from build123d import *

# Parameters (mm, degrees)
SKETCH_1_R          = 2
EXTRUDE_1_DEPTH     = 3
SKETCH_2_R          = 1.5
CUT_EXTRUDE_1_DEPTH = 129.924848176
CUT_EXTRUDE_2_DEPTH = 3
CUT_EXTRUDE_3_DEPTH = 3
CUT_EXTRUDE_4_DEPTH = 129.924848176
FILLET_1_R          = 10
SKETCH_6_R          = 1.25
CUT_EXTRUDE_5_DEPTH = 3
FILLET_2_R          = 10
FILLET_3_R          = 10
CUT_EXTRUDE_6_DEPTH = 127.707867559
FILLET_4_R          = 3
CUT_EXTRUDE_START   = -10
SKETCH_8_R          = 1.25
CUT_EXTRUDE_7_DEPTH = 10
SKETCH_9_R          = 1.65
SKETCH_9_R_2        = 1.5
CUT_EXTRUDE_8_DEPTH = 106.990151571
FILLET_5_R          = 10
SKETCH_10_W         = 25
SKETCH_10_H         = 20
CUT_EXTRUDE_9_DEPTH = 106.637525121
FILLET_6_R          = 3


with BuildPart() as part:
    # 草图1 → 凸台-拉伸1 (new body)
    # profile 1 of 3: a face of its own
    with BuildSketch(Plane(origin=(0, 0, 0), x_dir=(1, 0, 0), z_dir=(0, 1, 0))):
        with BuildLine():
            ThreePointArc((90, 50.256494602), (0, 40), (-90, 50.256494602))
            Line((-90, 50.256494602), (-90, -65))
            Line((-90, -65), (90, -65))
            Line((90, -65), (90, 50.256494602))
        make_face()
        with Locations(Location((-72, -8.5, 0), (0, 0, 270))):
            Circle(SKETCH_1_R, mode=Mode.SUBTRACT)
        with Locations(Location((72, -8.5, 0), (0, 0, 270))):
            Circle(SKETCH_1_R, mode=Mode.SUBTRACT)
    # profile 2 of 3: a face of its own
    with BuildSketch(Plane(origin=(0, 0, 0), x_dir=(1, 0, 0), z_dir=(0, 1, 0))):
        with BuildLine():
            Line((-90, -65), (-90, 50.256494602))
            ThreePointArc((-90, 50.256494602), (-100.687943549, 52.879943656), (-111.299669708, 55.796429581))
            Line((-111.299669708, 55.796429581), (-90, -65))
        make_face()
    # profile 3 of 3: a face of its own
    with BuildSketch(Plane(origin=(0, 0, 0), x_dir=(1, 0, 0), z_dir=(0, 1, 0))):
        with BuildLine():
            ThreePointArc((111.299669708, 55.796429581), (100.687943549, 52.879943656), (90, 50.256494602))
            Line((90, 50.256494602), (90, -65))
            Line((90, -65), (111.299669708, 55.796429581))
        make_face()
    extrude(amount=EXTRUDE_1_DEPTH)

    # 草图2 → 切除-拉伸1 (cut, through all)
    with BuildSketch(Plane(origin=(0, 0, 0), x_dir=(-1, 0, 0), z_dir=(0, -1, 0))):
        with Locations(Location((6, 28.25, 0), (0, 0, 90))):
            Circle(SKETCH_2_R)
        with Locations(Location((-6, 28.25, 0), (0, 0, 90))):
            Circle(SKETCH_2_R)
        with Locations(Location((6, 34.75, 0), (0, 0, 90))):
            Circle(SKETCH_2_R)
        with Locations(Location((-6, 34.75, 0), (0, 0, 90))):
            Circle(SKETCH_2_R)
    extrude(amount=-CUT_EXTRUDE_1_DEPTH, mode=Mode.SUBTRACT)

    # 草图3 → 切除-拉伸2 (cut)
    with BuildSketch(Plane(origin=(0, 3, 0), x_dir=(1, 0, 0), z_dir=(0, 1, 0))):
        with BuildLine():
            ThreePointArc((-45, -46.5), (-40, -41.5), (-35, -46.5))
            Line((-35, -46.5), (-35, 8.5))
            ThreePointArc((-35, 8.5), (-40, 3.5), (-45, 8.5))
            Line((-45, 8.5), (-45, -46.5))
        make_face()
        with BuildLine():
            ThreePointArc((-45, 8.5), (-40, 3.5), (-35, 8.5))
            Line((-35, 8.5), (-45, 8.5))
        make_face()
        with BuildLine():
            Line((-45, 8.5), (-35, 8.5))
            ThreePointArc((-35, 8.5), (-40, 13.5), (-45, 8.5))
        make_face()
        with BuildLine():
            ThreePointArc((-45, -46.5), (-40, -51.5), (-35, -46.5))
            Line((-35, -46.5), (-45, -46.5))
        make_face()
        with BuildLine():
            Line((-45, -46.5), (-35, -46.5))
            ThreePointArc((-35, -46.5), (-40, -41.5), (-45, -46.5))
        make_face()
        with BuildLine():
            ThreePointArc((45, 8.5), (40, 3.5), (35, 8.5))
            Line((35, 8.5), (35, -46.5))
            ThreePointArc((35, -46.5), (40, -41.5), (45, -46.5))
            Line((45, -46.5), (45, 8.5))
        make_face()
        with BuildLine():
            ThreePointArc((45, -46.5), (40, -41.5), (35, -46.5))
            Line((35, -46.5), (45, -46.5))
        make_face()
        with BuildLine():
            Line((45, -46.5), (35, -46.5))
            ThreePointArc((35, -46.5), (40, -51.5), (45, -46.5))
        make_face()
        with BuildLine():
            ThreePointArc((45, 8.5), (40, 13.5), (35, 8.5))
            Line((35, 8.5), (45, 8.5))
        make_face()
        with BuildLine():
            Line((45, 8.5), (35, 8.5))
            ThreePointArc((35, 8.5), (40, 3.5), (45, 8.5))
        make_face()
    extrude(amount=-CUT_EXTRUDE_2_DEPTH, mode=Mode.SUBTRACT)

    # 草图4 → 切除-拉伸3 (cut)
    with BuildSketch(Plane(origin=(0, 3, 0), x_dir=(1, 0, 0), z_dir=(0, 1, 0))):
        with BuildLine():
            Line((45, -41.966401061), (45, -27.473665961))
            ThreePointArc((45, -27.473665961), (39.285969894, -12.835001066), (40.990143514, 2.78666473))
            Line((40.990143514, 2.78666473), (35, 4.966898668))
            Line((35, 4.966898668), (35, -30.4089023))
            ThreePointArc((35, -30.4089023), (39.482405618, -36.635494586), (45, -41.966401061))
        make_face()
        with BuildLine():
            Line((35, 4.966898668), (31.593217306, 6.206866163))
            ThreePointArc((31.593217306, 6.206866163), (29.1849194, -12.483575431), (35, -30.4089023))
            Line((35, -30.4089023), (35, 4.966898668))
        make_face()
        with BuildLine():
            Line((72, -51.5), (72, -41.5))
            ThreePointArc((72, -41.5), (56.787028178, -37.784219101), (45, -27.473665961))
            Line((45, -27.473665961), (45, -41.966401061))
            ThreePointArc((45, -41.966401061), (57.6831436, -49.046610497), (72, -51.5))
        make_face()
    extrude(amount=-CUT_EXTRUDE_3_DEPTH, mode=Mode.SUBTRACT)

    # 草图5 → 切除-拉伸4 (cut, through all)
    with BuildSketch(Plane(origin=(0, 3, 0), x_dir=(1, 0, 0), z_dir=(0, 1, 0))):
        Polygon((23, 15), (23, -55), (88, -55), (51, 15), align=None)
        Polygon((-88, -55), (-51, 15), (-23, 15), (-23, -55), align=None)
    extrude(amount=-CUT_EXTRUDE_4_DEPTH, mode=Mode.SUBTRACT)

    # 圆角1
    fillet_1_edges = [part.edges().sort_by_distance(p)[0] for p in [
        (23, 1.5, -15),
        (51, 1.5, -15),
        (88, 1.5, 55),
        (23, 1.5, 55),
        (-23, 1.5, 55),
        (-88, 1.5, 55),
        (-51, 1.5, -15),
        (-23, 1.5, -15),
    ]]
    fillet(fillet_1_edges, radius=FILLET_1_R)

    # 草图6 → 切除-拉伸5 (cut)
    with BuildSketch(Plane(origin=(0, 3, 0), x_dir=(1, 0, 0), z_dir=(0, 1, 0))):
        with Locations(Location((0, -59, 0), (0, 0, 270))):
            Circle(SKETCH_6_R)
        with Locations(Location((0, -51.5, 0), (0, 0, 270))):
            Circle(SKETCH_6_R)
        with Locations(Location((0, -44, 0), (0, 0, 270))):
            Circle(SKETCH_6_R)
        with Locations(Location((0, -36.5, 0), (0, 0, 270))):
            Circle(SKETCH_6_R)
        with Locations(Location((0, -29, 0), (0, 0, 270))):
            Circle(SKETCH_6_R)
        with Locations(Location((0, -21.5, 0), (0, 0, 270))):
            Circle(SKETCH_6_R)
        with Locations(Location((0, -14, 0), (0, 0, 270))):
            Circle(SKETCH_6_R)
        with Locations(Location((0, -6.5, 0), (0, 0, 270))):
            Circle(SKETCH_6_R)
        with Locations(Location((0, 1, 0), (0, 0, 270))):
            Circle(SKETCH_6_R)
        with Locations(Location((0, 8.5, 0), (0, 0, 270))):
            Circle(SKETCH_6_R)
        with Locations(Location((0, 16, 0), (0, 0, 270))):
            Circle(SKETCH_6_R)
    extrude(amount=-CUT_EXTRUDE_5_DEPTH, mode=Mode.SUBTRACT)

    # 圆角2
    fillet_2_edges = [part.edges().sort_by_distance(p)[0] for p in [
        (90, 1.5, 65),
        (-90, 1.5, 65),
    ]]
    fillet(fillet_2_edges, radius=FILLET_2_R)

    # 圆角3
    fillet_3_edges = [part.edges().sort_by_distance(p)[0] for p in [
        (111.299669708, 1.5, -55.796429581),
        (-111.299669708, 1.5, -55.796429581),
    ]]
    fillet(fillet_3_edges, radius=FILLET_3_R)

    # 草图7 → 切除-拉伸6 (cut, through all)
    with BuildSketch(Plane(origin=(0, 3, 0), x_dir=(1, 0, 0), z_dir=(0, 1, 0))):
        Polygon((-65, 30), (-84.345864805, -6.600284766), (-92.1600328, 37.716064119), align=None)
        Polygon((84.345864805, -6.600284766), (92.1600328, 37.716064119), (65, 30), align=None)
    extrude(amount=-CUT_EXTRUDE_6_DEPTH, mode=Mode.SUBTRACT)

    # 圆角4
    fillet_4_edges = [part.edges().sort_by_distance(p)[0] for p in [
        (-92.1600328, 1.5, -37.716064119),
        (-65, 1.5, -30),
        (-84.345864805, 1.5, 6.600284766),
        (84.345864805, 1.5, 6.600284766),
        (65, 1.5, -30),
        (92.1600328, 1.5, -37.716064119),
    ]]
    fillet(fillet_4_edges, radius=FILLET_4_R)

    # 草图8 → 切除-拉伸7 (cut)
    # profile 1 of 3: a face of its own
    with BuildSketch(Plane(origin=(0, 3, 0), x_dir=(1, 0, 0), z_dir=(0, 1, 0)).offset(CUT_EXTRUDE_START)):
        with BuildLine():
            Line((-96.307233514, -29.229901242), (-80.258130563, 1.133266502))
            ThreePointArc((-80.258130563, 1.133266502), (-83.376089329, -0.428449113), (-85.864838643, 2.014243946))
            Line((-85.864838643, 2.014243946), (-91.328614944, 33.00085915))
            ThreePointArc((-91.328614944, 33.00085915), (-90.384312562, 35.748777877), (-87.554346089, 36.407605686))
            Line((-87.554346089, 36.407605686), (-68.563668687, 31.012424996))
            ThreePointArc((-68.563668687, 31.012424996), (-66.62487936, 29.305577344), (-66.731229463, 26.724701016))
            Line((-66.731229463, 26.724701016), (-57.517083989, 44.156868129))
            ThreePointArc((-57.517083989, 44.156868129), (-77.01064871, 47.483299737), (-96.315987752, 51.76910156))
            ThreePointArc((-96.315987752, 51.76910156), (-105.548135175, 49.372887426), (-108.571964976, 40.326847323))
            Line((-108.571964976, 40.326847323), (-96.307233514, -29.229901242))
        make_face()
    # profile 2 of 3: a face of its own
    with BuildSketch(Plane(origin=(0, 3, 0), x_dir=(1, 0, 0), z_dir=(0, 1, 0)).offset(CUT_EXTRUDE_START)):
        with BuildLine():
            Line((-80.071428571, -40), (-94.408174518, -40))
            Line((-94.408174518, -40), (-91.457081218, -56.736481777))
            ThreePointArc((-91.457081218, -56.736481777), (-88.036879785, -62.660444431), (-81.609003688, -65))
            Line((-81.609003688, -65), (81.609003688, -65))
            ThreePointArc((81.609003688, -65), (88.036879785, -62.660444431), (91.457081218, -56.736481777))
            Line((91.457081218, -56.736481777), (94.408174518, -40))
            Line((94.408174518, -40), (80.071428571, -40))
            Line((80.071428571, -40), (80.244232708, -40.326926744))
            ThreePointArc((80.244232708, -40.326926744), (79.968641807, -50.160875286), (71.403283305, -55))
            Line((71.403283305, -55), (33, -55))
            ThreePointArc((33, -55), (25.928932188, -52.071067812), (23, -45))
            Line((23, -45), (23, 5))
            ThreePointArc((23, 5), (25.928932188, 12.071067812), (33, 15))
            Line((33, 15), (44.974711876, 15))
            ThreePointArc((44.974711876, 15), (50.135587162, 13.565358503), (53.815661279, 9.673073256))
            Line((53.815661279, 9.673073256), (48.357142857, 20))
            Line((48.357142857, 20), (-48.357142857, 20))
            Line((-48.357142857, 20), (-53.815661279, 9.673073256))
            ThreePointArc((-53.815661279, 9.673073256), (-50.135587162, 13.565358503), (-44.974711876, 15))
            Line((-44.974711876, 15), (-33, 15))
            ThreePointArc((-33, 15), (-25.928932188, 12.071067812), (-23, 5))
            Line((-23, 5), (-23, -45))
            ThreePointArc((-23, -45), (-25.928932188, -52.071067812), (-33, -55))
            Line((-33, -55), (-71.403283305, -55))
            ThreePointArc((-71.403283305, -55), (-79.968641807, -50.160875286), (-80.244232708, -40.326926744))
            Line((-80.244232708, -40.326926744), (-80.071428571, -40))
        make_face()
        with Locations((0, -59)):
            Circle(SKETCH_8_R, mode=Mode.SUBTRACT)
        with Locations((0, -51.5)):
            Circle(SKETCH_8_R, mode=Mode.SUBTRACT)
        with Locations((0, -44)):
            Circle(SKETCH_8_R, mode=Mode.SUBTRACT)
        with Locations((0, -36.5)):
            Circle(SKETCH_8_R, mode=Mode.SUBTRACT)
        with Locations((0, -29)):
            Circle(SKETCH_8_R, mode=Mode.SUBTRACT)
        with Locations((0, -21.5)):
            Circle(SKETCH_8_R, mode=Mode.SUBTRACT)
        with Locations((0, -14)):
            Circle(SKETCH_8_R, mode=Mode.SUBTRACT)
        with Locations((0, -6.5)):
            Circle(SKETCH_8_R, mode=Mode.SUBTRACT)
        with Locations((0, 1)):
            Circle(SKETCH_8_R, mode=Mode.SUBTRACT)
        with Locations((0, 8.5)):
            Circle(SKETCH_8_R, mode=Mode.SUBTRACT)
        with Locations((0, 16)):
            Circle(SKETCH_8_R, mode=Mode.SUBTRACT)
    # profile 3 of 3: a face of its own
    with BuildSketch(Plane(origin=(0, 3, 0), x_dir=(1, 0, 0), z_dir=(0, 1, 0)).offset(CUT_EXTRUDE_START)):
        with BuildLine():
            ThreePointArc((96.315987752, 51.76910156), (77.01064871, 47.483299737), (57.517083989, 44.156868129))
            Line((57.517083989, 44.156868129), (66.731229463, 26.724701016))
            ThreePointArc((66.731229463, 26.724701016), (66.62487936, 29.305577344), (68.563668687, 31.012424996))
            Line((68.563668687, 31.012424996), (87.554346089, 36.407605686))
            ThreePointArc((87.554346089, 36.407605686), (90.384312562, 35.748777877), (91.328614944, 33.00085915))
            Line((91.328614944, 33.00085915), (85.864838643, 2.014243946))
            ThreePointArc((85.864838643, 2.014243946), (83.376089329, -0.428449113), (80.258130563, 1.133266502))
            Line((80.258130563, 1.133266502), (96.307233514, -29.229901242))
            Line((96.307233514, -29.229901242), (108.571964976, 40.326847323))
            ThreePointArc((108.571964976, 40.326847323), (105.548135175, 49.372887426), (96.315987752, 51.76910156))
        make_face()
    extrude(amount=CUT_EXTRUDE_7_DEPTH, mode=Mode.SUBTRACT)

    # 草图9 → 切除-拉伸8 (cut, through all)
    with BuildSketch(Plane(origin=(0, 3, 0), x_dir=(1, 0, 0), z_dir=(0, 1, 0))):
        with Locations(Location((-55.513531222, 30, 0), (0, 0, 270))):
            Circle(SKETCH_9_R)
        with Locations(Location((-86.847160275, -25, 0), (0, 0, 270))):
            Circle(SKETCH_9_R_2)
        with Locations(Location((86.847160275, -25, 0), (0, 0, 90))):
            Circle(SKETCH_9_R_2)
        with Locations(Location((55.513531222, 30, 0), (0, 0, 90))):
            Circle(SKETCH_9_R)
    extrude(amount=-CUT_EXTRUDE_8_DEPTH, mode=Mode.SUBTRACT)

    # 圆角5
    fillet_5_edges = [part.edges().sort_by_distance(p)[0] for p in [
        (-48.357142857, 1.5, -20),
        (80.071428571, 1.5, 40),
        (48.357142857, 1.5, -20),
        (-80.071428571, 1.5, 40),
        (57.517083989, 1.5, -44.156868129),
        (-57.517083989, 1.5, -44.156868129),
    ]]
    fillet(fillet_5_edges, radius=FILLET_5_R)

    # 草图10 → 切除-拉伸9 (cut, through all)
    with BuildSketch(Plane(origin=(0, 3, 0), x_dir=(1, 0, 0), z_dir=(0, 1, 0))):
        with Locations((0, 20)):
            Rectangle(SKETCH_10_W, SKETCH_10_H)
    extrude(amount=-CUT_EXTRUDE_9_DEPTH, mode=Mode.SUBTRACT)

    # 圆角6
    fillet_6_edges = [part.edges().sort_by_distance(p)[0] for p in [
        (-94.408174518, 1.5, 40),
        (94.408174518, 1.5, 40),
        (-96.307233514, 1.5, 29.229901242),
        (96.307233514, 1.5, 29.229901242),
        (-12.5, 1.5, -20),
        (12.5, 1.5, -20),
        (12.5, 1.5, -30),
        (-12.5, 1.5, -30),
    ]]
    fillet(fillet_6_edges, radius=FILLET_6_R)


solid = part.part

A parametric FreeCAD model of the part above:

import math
import FreeCAD as App
import Part
import Sketcher

V = App.Vector
Q = App.Units.Quantity


def edges_at(feature, points):
    """Names of the edges that pass closest to the given points."""
    edges = feature.Shape.Edges
    near = lambda p: min(range(len(edges)), key=lambda i: edges[i].distToShape(Part.Vertex(*p))[0])
    return sorted({f"Edge{near(p) + 1}" for p in points})

doc = App.newDocument("Part")
body = doc.addObject("PartDesign::Body", "Body")

sketch1 = body.newObject("Sketcher::SketchObject", "Sketch")
sketch1.AttachmentSupport = (doc.getObject("XZ_Plane"), [""])
sketch1.MapMode = "FlatFace"
sketch1.addGeometry([
    Part.ArcOfCircle(Part.Circle(V(0, -440, 0), V(0, 0, 1), 400), math.radians(77), math.radians(103)),
    Part.ArcOfCircle(Part.Circle(V(0, -440, 0), V(0, 0, 1), 400), math.radians(103), math.radians(106.16)),
    Part.LineSegment(V(-111.3, -55.8, 0), V(-90, 65, 0)),
    Part.LineSegment(V(-90, 65, 0), V(90, 65, 0)),
    Part.LineSegment(V(90, 65, 0), V(111.3, -55.8, 0)),
    Part.ArcOfCircle(Part.Circle(V(0, -440, 0), V(0, 0, 1), 400), math.radians(73.84), math.radians(77)),
    Part.Circle(V(-72, 8.5, 0), V(0, 0, 1), 2),
    Part.Circle(V(72, 8.5, 0), V(0, 0, 1), 2),
], False)
sketch1.addConstraint([
    Sketcher.Constraint("Tangent", 0, 2, 1, 1),
    Sketcher.Constraint("Coincident", 1, 2, 2, 1),
    Sketcher.Constraint("Coincident", 2, 2, 3, 1),
    Sketcher.Constraint("Coincident", 3, 2, 4, 1),
    Sketcher.Constraint("Coincident", 4, 2, 5, 1),
    Sketcher.Constraint("Tangent", 5, 2, 0, 1),
    Sketcher.Constraint("Horizontal", 3),
    Sketcher.Constraint("Equal", 0, 1),
    Sketcher.Constraint("Equal", 1, 5),
    Sketcher.Constraint("Equal", 6, 7),
    Sketcher.Constraint("Symmetric", 6, 3, 7, 3, -2),
    Sketcher.Constraint("Symmetric", 1, 2, 4, 2, -2),
    Sketcher.Constraint("Horizontal", 0, 2, 5, 2),
    Sketcher.Constraint("Vertical", 0, 2, 2, 2),
    Sketcher.Constraint("Vertical", 3, 2, 5, 2),
    Sketcher.Constraint("Diameter", 6, 4.0),
    Sketcher.Constraint("Radius", 0, 400.0),
    Sketcher.Constraint("DistanceX", 3, 1, 3, 2, 180.0),
    Sketcher.Constraint("Angle", 2, Q("80 deg")),
    Sketcher.Constraint("DistanceY", 0, 3, -1, 1, 440.0),
    Sketcher.Constraint("DistanceX", 6, 3, -1, 1, 72.0),
    Sketcher.Constraint("DistanceY", -1, 1, 2, 2, 65.0),
    Sketcher.Constraint("DistanceY", -1, 1, 6, 3, 8.5),
])
pad1 = body.newObject("PartDesign::Pad", "Pad")
pad1.Profile = sketch1
pad1.Length = 3
pad1.Reversed = True

sketch2 = body.newObject("Sketcher::SketchObject", "Sketch001")
sketch2.AttachmentSupport = (doc.getObject("XZ_Plane"), [""])
sketch2.MapMode = "FlatFace"
sketch2.addGeometry([
    Part.Circle(V(-6, -28.2, 0), V(0, 0, 1), 1.5),
    Part.Circle(V(6, -28.2, 0), V(0, 0, 1), 1.5),
    Part.Circle(V(-6, -34.8, 0), V(0, 0, 1), 1.5),
    Part.Circle(V(6, -34.8, 0), V(0, 0, 1), 1.5),
], False)
sketch2.addConstraint([
    Sketcher.Constraint("Equal", 0, 1),
    Sketcher.Constraint("Equal", 1, 2),
    Sketcher.Constraint("Equal", 2, 3),
    Sketcher.Constraint("Symmetric", 0, 3, 1, 3, -2),
    Sketcher.Constraint("Symmetric", 2, 3, 3, 3, -2),
    Sketcher.Constraint("Vertical", 0, 3, 2, 3),
    Sketcher.Constraint("Diameter", 0, 3.0),
    Sketcher.Constraint("DistanceX", 0, 3, -1, 1, 6.0),
    Sketcher.Constraint("DistanceY", 2, 3, 0, 3, 6.5),
    Sketcher.Constraint("DistanceY", 0, 3, -1, 1, 28.25),
])
pocket1 = body.newObject("PartDesign::Pocket", "Pocket")
pocket1.Profile = sketch2
pocket1.Type = "ThroughAll"

sketch3 = body.newObject("Sketcher::SketchObject", "Sketch002")
sketch3.AttachmentSupport = (doc.getObject("XZ_Plane"), [""])
sketch3.MapMode = "FlatFace"
sketch3.AttachmentOffset = App.Placement(V(0, 0, -3), App.Rotation())
sketch3.addGeometry([
    Part.LineSegment(V(-35, 46, 0), V(-35, -8, 0)),
    Part.ArcOfCircle(Part.Circle(V(-40, -8, 0), V(0, 0, 1), 5), math.radians(180), math.radians(360)),
    Part.LineSegment(V(-45, -8, 0), V(-45, 46, 0)),
    Part.ArcOfCircle(Part.Circle(V(-40, 46, 0), V(0, 0, 1), 5), math.radians(0), math.radians(180)),
    Part.ArcOfCircle(Part.Circle(V(40, 46, 0), V(0, 0, 1), 5), math.radians(0), math.radians(180)),
    Part.LineSegment(V(45, 46, 0), V(45, -8, 0)),
    Part.ArcOfCircle(Part.Circle(V(40, -8, 0), V(0, 0, 1), 5), math.radians(180), math.radians(360)),
    Part.LineSegment(V(35, -8, 0), V(35, 46, 0)),
], False)
sketch3.addConstraint([
    Sketcher.Constraint("Tangent", 0, 2, 1, 2),
    Sketcher.Constraint("Tangent", 1, 1, 2, 1),
    Sketcher.Constraint("Tangent", 2, 2, 3, 2),
    Sketcher.Constraint("Tangent", 3, 1, 0, 1),
    Sketcher.Constraint("Tangent", 4, 1, 5, 1),
    Sketcher.Constraint("Tangent", 5, 2, 6, 2),
    Sketcher.Constraint("Tangent", 6, 1, 7, 1),
    Sketcher.Constraint("Tangent", 7, 2, 4, 2),
    Sketcher.Constraint("Vertical", 0),
    Sketcher.Constraint("Vertical", 2),
    Sketcher.Constraint("Vertical", 5),
    Sketcher.Constraint("Vertical", 7),
    Sketcher.Constraint("Equal", 3, 4),
    Sketcher.Constraint("Symmetric", 3, 3, 4, 3, -2),
    Sketcher.Constraint("Horizontal", 1, 3, 6, 3),
    Sketcher.Constraint("Radius", 1, 5.0),
    Sketcher.Constraint("DistanceY", 0, 2, 0, 1, 55.0),
    Sketcher.Constraint("DistanceX", 1, 3, -1, 1, 40.0),
    Sketcher.Constraint("DistanceY", 1, 3, -1, 1, 8.5),
])
pocket2 = body.newObject("PartDesign::Pocket", "Pocket001")
pocket2.Profile = sketch3
pocket2.Length = 3
pocket2.Reversed = True

sketch4 = body.newObject("Sketcher::SketchObject", "Sketch003")
sketch4.AttachmentSupport = (doc.getObject("XZ_Plane"), [""])
sketch4.MapMode = "FlatFace"
sketch4.AttachmentOffset = App.Placement(V(0, 0, -3), App.Rotation())
sketch4.addGeometry([
    Part.ArcOfCircle(Part.Circle(V(72, 8.5, 0), V(0, 0, 1), 33), math.radians(145), math.radians(200)),
    Part.LineSegment(V(41, -2.8, 0), V(35, -5, 0)),
    Part.LineSegment(V(35, -5, 0), V(31.6, -6.2, 0)),
    Part.ArcOfCircle(Part.Circle(V(72, 8.5, 0), V(0, 0, 1), 43), math.radians(149), math.radians(200)),
    Part.ArcOfCircle(Part.Circle(V(72, 8.5, 0), V(0, 0, 1), 43), math.radians(129), math.radians(149)),
    Part.ArcOfCircle(Part.Circle(V(72, 8.5, 0), V(0, 0, 1), 43), math.radians(90), math.radians(129)),
    Part.LineSegment(V(72, 51.5, 0), V(72, 41.5, 0)),
    Part.ArcOfCircle(Part.Circle(V(72, 8.5, 0), V(0, 0, 1), 33), math.radians(90), math.radians(145)),
], False)
sketch4.addConstraint([
    Sketcher.Constraint("Coincident", 0, 2, 1, 1),
    Sketcher.Constraint("Coincident", 1, 2, 2, 1),
    Sketcher.Constraint("Coincident", 2, 2, 3, 2),
    Sketcher.Constraint("Tangent", 3, 1, 4, 2),
    Sketcher.Constraint("Tangent", 4, 1, 5, 2),
    Sketcher.Constraint("Coincident", 5, 1, 6, 1),
    Sketcher.Constraint("Coincident", 6, 2, 7, 1),
    Sketcher.Constraint("Tangent", 7, 2, 0, 1),
    Sketcher.Constraint("Vertical", 6),
    Sketcher.Constraint("Coincident", 3, 3, 0, 3),
    Sketcher.Constraint("Coincident", 5, 3, 0, 3),
    Sketcher.Constraint("Equal", 0, 7),
    Sketcher.Constraint("Parallel", 1, 2),
    Sketcher.Constraint("Vertical", 1, 2, 3, 1),
    Sketcher.Constraint("Vertical", 7, 3, 5, 1),
    Sketcher.Constraint("Vertical", 4, 1, 7, 2),
    Sketcher.Constraint("Radius", 0, 33.0),
    Sketcher.Constraint("Radius", 3, 43.0),
    Sketcher.Constraint("Angle", 1, Q("-160 deg")),
    Sketcher.Constraint("DistanceX", -1, 1, 0, 3, 72.0),
    Sketcher.Constraint("DistanceX", -1, 1, 1, 2, 35.0),
    Sketcher.Constraint("DistanceX", -1, 1, 4, 1, 45.0),
    Sketcher.Constraint("DistanceY", -1, 1, 0, 3, 8.5),
    Sketcher.Constraint("DistanceY", 1, 2, -1, 1, 4.966899),
])
pocket3 = body.newObject("PartDesign::Pocket", "Pocket002")
pocket3.Profile = sketch4
pocket3.Length = 3
pocket3.Reversed = True

sketch5 = body.newObject("Sketcher::SketchObject", "Sketch004")
sketch5.AttachmentSupport = (doc.getObject("XZ_Plane"), [""])
sketch5.MapMode = "FlatFace"
sketch5.AttachmentOffset = App.Placement(V(0, 0, -3), App.Rotation())
sketch5.addGeometry([
    Part.LineSegment(V(23, -15, 0), V(23, 55, 0)),
    Part.LineSegment(V(23, 55, 0), V(88, 55, 0)),
    Part.LineSegment(V(88, 55, 0), V(51, -15, 0)),
    Part.LineSegment(V(51, -15, 0), V(23, -15, 0)),
    Part.LineSegment(V(-51, -15, 0), V(-88, 55, 0)),
    Part.LineSegment(V(-88, 55, 0), V(-23, 55, 0)),
    Part.LineSegment(V(-23, 55, 0), V(-23, -15, 0)),
    Part.LineSegment(V(-23, -15, 0), V(-51, -15, 0)),
], False)
sketch5.addConstraint([
    Sketcher.Constraint("Coincident", 0, 2, 1, 1),
    Sketcher.Constraint("Coincident", 1, 2, 2, 1),
    Sketcher.Constraint("Coincident", 2, 2, 3, 1),
    Sketcher.Constraint("Coincident", 3, 2, 0, 1),
    Sketcher.Constraint("Coincident", 4, 2, 5, 1),
    Sketcher.Constraint("Coincident", 5, 2, 6, 1),
    Sketcher.Constraint("Coincident", 6, 2, 7, 1),
    Sketcher.Constraint("Coincident", 7, 2, 4, 1),
    Sketcher.Constraint("Vertical", 0),
    Sketcher.Constraint("Horizontal", 1),
    Sketcher.Constraint("Horizontal", 3),
    Sketcher.Constraint("Horizontal", 5),
    Sketcher.Constraint("Vertical", 6),
    Sketcher.Constraint("Horizontal", 7),
    Sketcher.Constraint("Symmetric", 1, 2, 4, 2, -2),
    Sketcher.Constraint("Symmetric", 3, 2, 6, 2, -2),
    Sketcher.Constraint("Equal", 3, 7),
    Sketcher.Constraint("DistanceX", 1, 1, 1, 2, 65.0),
    Sketcher.Constraint("DistanceX", 3, 2, 3, 1, 28.0),
    Sketcher.Constraint("DistanceY", 0, 1, 0, 2, 70.0),
    Sketcher.Constraint("DistanceX", -1, 1, 0, 2, 23.0),
    Sketcher.Constraint("DistanceY", -1, 1, 0, 2, 55.0),
])
pocket4 = body.newObject("PartDesign::Pocket", "Pocket003")
pocket4.Profile = sketch5
pocket4.Type = "ThroughAll"
pocket4.Reversed = True
doc.recompute()

fillet = body.newObject("PartDesign::Fillet", "Fillet")
fillet.Base = (pocket4, edges_at(pocket4, [
    (23, 1.5, -15),
    (51, 1.5, -15),
    (88, 1.5, 55),
    (23, 1.5, 55),
    (-23, 1.5, 55),
    (-88, 1.5, 55),
    (-51, 1.5, -15),
    (-23, 1.5, -15),
]))
fillet.Radius = 10

sketch6 = body.newObject("Sketcher::SketchObject", "Sketch005")
sketch6.AttachmentSupport = (doc.getObject("XZ_Plane"), [""])
sketch6.MapMode = "FlatFace"
sketch6.AttachmentOffset = App.Placement(V(0, 0, -3), App.Rotation())
sketch6.addGeometry([
    Part.Circle(V(0, 59, 0), V(0, 0, 1), 1.2),
    Part.Circle(V(0, 51.5, 0), V(0, 0, 1), 1.2),
    Part.Circle(V(0, 44, 0), V(0, 0, 1), 1.2),
    Part.Circle(V(0, 36.5, 0), V(0, 0, 1), 1.2),
    Part.Circle(V(0, 29, 0), V(0, 0, 1), 1.2),
    Part.Circle(V(0, 21.5, 0), V(0, 0, 1), 1.2),
    Part.Circle(V(0, 14, 0), V(0, 0, 1), 1.2),
    Part.Circle(V(0, 6.5, 0), V(0, 0, 1), 1.2),
    Part.Circle(V(0, -1, 0), V(0, 0, 1), 1.2),
    Part.Circle(V(0, -8.5, 0), V(0, 0, 1), 1.2),
    Part.Circle(V(0, -16, 0), V(0, 0, 1), 1.2),
], False)
sketch6.addConstraint([
    Sketcher.Constraint("Equal", 0, 1),
    Sketcher.Constraint("Equal", 1, 2),
    Sketcher.Constraint("Equal", 2, 3),
    Sketcher.Constraint("Equal", 3, 4),
    Sketcher.Constraint("Equal", 4, 5),
    Sketcher.Constraint("Equal", 5, 6),
    Sketcher.Constraint("Equal", 6, 7),
    Sketcher.Constraint("Equal", 7, 8),
    Sketcher.Constraint("Equal", 8, 9),
    Sketcher.Constraint("Equal", 9, 10),
    Sketcher.Constraint("PointOnObject", 0, 3, -2),
    Sketcher.Constraint("PointOnObject", 1, 3, -2),
    Sketcher.Constraint("PointOnObject", 2, 3, -2),
    Sketcher.Constraint("PointOnObject", 3, 3, -2),
    Sketcher.Constraint("PointOnObject", 4, 3, -2),
    Sketcher.Constraint("PointOnObject", 5, 3, -2),
    Sketcher.Constraint("PointOnObject", 6, 3, -2),
    Sketcher.Constraint("PointOnObject", 7, 3, -2),
    Sketcher.Constraint("PointOnObject", 8, 3, -2),
    Sketcher.Constraint("PointOnObject", 9, 3, -2),
    Sketcher.Constraint("PointOnObject", 10, 3, -2),
    Sketcher.Constraint("Diameter", 0, 2.5),
    Sketcher.Constraint("DistanceY", -1, 1, 0, 3, 59.0),
    Sketcher.Constraint("DistanceY", -1, 1, 2, 3, 44.0),
    Sketcher.Constraint("DistanceY", -1, 1, 4, 3, 29.0),
    Sketcher.Constraint("DistanceY", -1, 1, 6, 3, 14.0),
    Sketcher.Constraint("DistanceY", 8, 3, -1, 1, 1.0),
    Sketcher.Constraint("DistanceY", 10, 3, -1, 1, 16.0),
    Sketcher.Constraint("DistanceY", 3, 3, 1, 3, 15.0),
    Sketcher.Constraint("DistanceY", 5, 3, 3, 3, 15.0),
    Sketcher.Constraint("DistanceY", 7, 3, 5, 3, 15.0),
    Sketcher.Constraint("DistanceY", 9, 3, 7, 3, 15.0),
    Sketcher.Constraint("DistanceY", -1, 1, 1, 3, 51.5),
])
pocket5 = body.newObject("PartDesign::Pocket", "Pocket004")
pocket5.Profile = sketch6
pocket5.Length = 3
pocket5.Reversed = True
doc.recompute()

fillet2 = body.newObject("PartDesign::Fillet", "Fillet001")
fillet2.Base = (pocket5, edges_at(pocket5, [(90, 1.5, 65), (-90, 1.5, 65)]))
fillet2.Radius = 10
doc.recompute()

fillet3 = body.newObject("PartDesign::Fillet", "Fillet002")
fillet3.Base = (fillet2, edges_at(fillet2, [(111.3, 1.5, -55.796), (-111.3, 1.5, -55.796)]))
fillet3.Radius = 10

sketch7 = body.newObject("Sketcher::SketchObject", "Sketch006")
sketch7.AttachmentSupport = (doc.getObject("XZ_Plane"), [""])
sketch7.MapMode = "FlatFace"
sketch7.AttachmentOffset = App.Placement(V(0, 0, -3), App.Rotation())
sketch7.addGeometry([
    Part.LineSegment(V(-84, 7, 0), V(-65, -30, 0)),
    Part.LineSegment(V(-65, -30, 0), V(-92, -38, 0)),
    Part.LineSegment(V(-92, -38, 0), V(-84, 7, 0)),
    Part.LineSegment(V(84, 7, 0), V(92, -38, 0)),
    Part.LineSegment(V(92, -38, 0), V(65, -30, 0)),
    Part.LineSegment(V(65, -30, 0), V(84, 7, 0)),
], False)
sketch7.addConstraint([
    Sketcher.Constraint("Coincident", 0, 2, 1, 1),
    Sketcher.Constraint("Coincident", 1, 2, 2, 1),
    Sketcher.Constraint("Coincident", 2, 2, 0, 1),
    Sketcher.Constraint("Coincident", 3, 2, 4, 1),
    Sketcher.Constraint("Coincident", 4, 2, 5, 1),
    Sketcher.Constraint("Coincident", 5, 2, 3, 1),
    Sketcher.Constraint("Symmetric", 1, 2, 3, 2, -2),
    Sketcher.Constraint("Symmetric", 0, 2, 4, 2, -2),
    Sketcher.Constraint("Symmetric", 2, 2, 5, 2, -2),
    Sketcher.Constraint("Angle", 2, Q("80 deg")),
    Sketcher.Constraint("Distance", 2, 45.0),
    Sketcher.Constraint("DistanceX", 0, 2, -1, 1, 65.0),
    Sketcher.Constraint("DistanceY", 0, 2, -1, 1, 30.0),
    Sketcher.Constraint("Distance", 0, 41.398591),
    Sketcher.Constraint("Distance", 1, 28.234819),
])
pocket6 = body.newObject("PartDesign::Pocket", "Pocket005")
pocket6.Profile = sketch7
pocket6.Type = "ThroughAll"
pocket6.Reversed = True
doc.recompute()

fillet4 = body.newObject("PartDesign::Fillet", "Fillet003")
fillet4.Base = (pocket6, edges_at(pocket6, [
    (-92.16, 1.5, -37.716),
    (-65, 1.5, -30),
    (-84.346, 1.5, 6.6),
    (84.346, 1.5, 6.6),
    (65, 1.5, -30),
    (92.16, 1.5, -37.716),
]))
fillet4.Radius = 3

sketch8 = body.newObject("Sketcher::SketchObject", "Sketch007")
sketch8.AttachmentSupport = (doc.getObject("XZ_Plane"), [""])
sketch8.MapMode = "FlatFace"
sketch8.AttachmentOffset = App.Placement(V(0, 0, 7), App.Rotation())
sketch8.addGeometry([
    Part.LineSegment(V(-96.31, 29.23, 0), V(-80.26, -1.13, 0)),
    Part.ArcOfCircle(Part.Circle(V(-82.91, -2.54, 0), V(0, 0, 1), 3), math.radians(28), math.radians(170)),
    Part.LineSegment(V(-85.86, -2.01, 0), V(-91.33, -33, 0)),
    Part.ArcOfCircle(Part.Circle(V(-88.37, -33.52, 0), V(0, 0, 1), 3), math.radians(170), math.radians(286)),
    Part.LineSegment(V(-87.55, -36.41, 0), V(-68.56, -31.01, 0)),
    Part.ArcOfCircle(Part.Circle(V(-69.38, -28.13, 0), V(0, 0, 1), 3), math.radians(-74), math.radians(28)),
    Part.LineSegment(V(-66.73, -26.72, 0), V(-57.52, -44.16, 0)),
    Part.ArcOfCircle(Part.Circle(V(0, -440, 0), V(0, 0, 1), 400), math.radians(98.27), math.radians(103.93)),
    Part.ArcOfCircle(Part.Circle(V(-98.72, -42.06, 0), V(0, 0, 1), 10), math.radians(170), math.radians(284)),
    Part.LineSegment(V(-108.57, -40.33, 0), V(-96.31, 29.23, 0)),
    Part.LineSegment(V(-80.07, 40, 0), V(-94.41, 40, 0)),
    Part.LineSegment(V(-94.41, 40, 0), V(-91.46, 56.74, 0)),
    Part.ArcOfCircle(Part.Circle(V(-81.61, 55, 0), V(0, 0, 1), 10), math.radians(90), math.radians(170)),
    Part.LineSegment(V(-81.61, 65, 0), V(81.61, 65, 0)),
    Part.ArcOfCircle(Part.Circle(V(81.61, 55, 0), V(0, 0, 1), 10), math.radians(10), math.radians(90)),
    Part.LineSegment(V(91.46, 56.74, 0), V(94.41, 40, 0)),
    Part.LineSegment(V(94.41, 40, 0), V(80.07, 40, 0)),
    Part.LineSegment(V(80.07, 40, 0), V(80.24, 40.33, 0)),
    Part.ArcOfCircle(Part.Circle(V(71.4, 45, 0), V(0, 0, 1), 10), math.radians(-28), math.radians(90)),
    Part.LineSegment(V(71.4, 55, 0), V(33, 55, 0)),
    Part.ArcOfCircle(Part.Circle(V(33, 45, 0), V(0, 0, 1), 10), math.radians(90), math.radians(180)),
    Part.LineSegment(V(23, 45, 0), V(23, -5, 0)),
    Part.ArcOfCircle(Part.Circle(V(33, -5, 0), V(0, 0, 1), 10), math.radians(180), math.radians(270)),
    Part.LineSegment(V(33, -15, 0), V(44.97, -15, 0)),
    Part.ArcOfCircle(Part.Circle(V(44.97, -5, 0), V(0, 0, 1), 10), math.radians(-90), math.radians(-28)),
    Part.LineSegment(V(53.82, -9.67, 0), V(48.36, -20, 0)),
    Part.LineSegment(V(48.36, -20, 0), V(-48.36, -20, 0)),
    Part.LineSegment(V(-48.36, -20, 0), V(-53.82, -9.67, 0)),
    Part.ArcOfCircle(Part.Circle(V(-44.97, -5, 0), V(0, 0, 1), 10), math.radians(-152), math.radians(-90)),
    Part.LineSegment(V(-44.97, -15, 0), V(-33, -15, 0)),
    Part.ArcOfCircle(Part.Circle(V(-33, -5, 0), V(0, 0, 1), 10), math.radians(-90), math.radians(0)),
    Part.LineSegment(V(-23, -5, 0), V(-23, 45, 0)),
    Part.ArcOfCircle(Part.Circle(V(-33, 45, 0), V(0, 0, 1), 10), math.radians(0), math.radians(90)),
    Part.LineSegment(V(-33, 55, 0), V(-71.4, 55, 0)),
    Part.ArcOfCircle(Part.Circle(V(-71.4, 45, 0), V(0, 0, 1), 10), math.radians(90), math.radians(208)),
    Part.LineSegment(V(-80.24, 40.33, 0), V(-80.07, 40, 0)),
    Part.Circle(V(0, 59, 0), V(0, 0, 1), 1.25),
    Part.Circle(V(0, 51.5, 0), V(0, 0, 1), 1.25),
    Part.Circle(V(0, 44, 0), V(0, 0, 1), 1.25),
    Part.Circle(V(0, 36.5, 0), V(0, 0, 1), 1.25),
    Part.Circle(V(0, 29, 0), V(0, 0, 1), 1.25),
    Part.Circle(V(0, 21.5, 0), V(0, 0, 1), 1.25),
    Part.Circle(V(0, 14, 0), V(0, 0, 1), 1.25),
    Part.Circle(V(0, 6.5, 0), V(0, 0, 1), 1.25),
    Part.Circle(V(0, -1, 0), V(0, 0, 1), 1.25),
    Part.Circle(V(0, -8.5, 0), V(0, 0, 1), 1.25),
    Part.Circle(V(0, -16, 0), V(0, 0, 1), 1.25),
    Part.ArcOfCircle(Part.Circle(V(0, -440, 0), V(0, 0, 1), 400), math.radians(76.07), math.radians(81.73)),
    Part.LineSegment(V(57.52, -44.16, 0), V(66.73, -26.72, 0)),
    Part.ArcOfCircle(Part.Circle(V(69.38, -28.13, 0), V(0, 0, 1), 3), math.radians(152), math.radians(254)),
    Part.LineSegment(V(68.56, -31.01, 0), V(87.55, -36.41, 0)),
    Part.ArcOfCircle(Part.Circle(V(88.37, -33.52, 0), V(0, 0, 1), 3), math.radians(-106), math.radians(10)),
    Part.LineSegment(V(91.33, -33, 0), V(85.86, -2.01, 0)),
    Part.ArcOfCircle(Part.Circle(V(82.91, -2.54, 0), V(0, 0, 1), 3), math.radians(10), math.radians(152)),
    Part.LineSegment(V(80.26, -1.13, 0), V(96.31, 29.23, 0)),
    Part.LineSegment(V(96.31, 29.23, 0), V(108.57, -40.33, 0)),
    Part.ArcOfCircle(Part.Circle(V(98.72, -42.06, 0), V(0, 0, 1), 10), math.radians(-104), math.radians(10)),
], False)
sketch8.addConstraint([
    Sketcher.Constraint("Tangent", 0, 2, 1, 1),
    Sketcher.Constraint("Tangent", 1, 2, 2, 1),
    Sketcher.Constraint("Tangent", 2, 2, 3, 1),
    Sketcher.Constraint("Tangent", 3, 2, 4, 1),
    Sketcher.Constraint("Tangent", 4, 2, 5, 1),
    Sketcher.Constraint("Tangent", 5, 2, 6, 1),
    Sketcher.Constraint("Coincident", 6, 2, 7, 1),
    Sketcher.Constraint("Tangent", 7, 2, 8, 2),
    Sketcher.Constraint("Tangent", 8, 1, 9, 1),
    Sketcher.Constraint("Coincident", 9, 2, 0, 1),
    Sketcher.Constraint("Coincident", 10, 2, 11, 1),
    Sketcher.Constraint("Tangent", 11, 2, 12, 2),
    Sketcher.Constraint("Tangent", 12, 1, 13, 1),
    Sketcher.Constraint("Tangent", 13, 2, 14, 2),
    Sketcher.Constraint("Tangent", 14, 1, 15, 1),
    Sketcher.Constraint("Coincident", 15, 2, 16, 1),
    Sketcher.Constraint("Coincident", 16, 2, 17, 1),
    Sketcher.Constraint("Tangent", 17, 2, 18, 1),
    Sketcher.Constraint("Tangent", 18, 2, 19, 1),
    Sketcher.Constraint("Tangent", 19, 2, 20, 1),
    Sketcher.Constraint("Tangent", 20, 2, 21, 1),
    Sketcher.Constraint("Tangent", 21, 2, 22, 1),
    Sketcher.Constraint("Tangent", 22, 2, 23, 1),
    Sketcher.Constraint("Tangent", 23, 2, 24, 1),
    Sketcher.Constraint("Tangent", 24, 2, 25, 1),
    Sketcher.Constraint("Coincident", 25, 2, 26, 1),
    Sketcher.Constraint("Coincident", 26, 2, 27, 1),
    Sketcher.Constraint("Tangent", 27, 2, 28, 1),
    Sketcher.Constraint("Tangent", 28, 2, 29, 1),
    Sketcher.Constraint("Tangent", 29, 2, 30, 1),
    Sketcher.Constraint("Tangent", 30, 2, 31, 1),
    Sketcher.Constraint("Tangent", 31, 2, 32, 1),
    Sketcher.Constraint("Tangent", 32, 2, 33, 1),
    Sketcher.Constraint("Tangent", 33, 2, 34, 1),
    Sketcher.Constraint("Tangent", 34, 2, 35, 1),
    Sketcher.Constraint("Coincident", 35, 2, 10, 1),
    Sketcher.Constraint("Coincident", 47, 2, 48, 1),
    Sketcher.Constraint("Tangent", 48, 2, 49, 1),
    Sketcher.Constraint("Tangent", 49, 2, 50, 1),
    Sketcher.Constraint("Tangent", 50, 2, 51, 1),
    Sketcher.Constraint("Tangent", 51, 2, 52, 1),
    Sketcher.Constraint("Tangent", 52, 2, 53, 1),
    Sketcher.Constraint("Tangent", 53, 2, 54, 1),
    Sketcher.Constraint("Coincident", 54, 2, 55, 1),
    Sketcher.Constraint("Tangent", 55, 2, 56, 2),
    Sketcher.Constraint("Tangent", 56, 1, 47, 1),
    Sketcher.Constraint("Horizontal", 10),
    Sketcher.Constraint("Horizontal", 13),
    Sketcher.Constraint("Horizontal", 16),
    Sketcher.Constraint("Horizontal", 19),
    Sketcher.Constraint("Vertical", 21),
    Sketcher.Constraint("Horizontal", 23),
    Sketcher.Constraint("Horizontal", 26),
    Sketcher.Constraint("Horizontal", 29),
    Sketcher.Constraint("Vertical", 31),
    Sketcher.Constraint("Horizontal", 33),
    Sketcher.Constraint("Coincident", 47, 3, 7, 3),
    Sketcher.Constraint("Equal", 1, 3),
    Sketcher.Constraint("Equal", 3, 5),
    Sketcher.Constraint("Equal", 8, 12),
    Sketcher.Constraint("Equal", 12, 14),
    Sketcher.Constraint("Equal", 14, 18),
    Sketcher.Constraint("Equal", 18, 20),
    Sketcher.Constraint("Equal", 20, 22),
    Sketcher.Constraint("Equal", 22, 24),
    Sketcher.Constraint("Equal", 24, 28),
    Sketcher.Constraint("Equal", 28, 30),
    Sketcher.Constraint("Equal", 30, 32),
    Sketcher.Constraint("Equal", 32, 34),
    Sketcher.Constraint("Equal", 36, 37),
    Sketcher.Constraint("Equal", 37, 38),
    Sketcher.Constraint("Equal", 38, 39),
    Sketcher.Constraint("Equal", 39, 40),
    Sketcher.Constraint("Equal", 40, 41),
    Sketcher.Constraint("Equal", 41, 42),
    Sketcher.Constraint("Equal", 42, 43),
    Sketcher.Constraint("Equal", 43, 44),
    Sketcher.Constraint("Equal", 44, 45),
    Sketcher.Constraint("Equal", 45, 46),
    Sketcher.Constraint("Equal", 7, 47),
    Sketcher.Constraint("Equal", 5, 49),
    Sketcher.Constraint("Equal", 49, 51),
    Sketcher.Constraint("Equal", 51, 53),
    Sketcher.Constraint("Equal", 34, 56),
    Sketcher.Constraint("Symmetric", 24, 3, 28, 3, -2),
    Sketcher.Constraint("Symmetric", 20, 3, 32, 3, -2),
    Sketcher.Constraint("Symmetric", 5, 3, 49, 3, -2),
    Sketcher.Constraint("Symmetric", 3, 3, 51, 3, -2),
    Sketcher.Constraint("Symmetric", 1, 3, 53, 3, -2),
    Sketcher.Constraint("Symmetric", 8, 3, 56, 3, -2),
    Sketcher.Constraint("Symmetric", 11, 2, 14, 1, -2),
    Sketcher.Constraint("Symmetric", 17, 2, 34, 2, -2),
    Sketcher.Constraint("Symmetric", 9, 2, 54, 2, -2),
    Sketcher.Constraint("PointOnObject", 36, 3, -2),
    Sketcher.Constraint("PointOnObject", 37, 3, -2),
    Sketcher.Constraint("PointOnObject", 38, 3, -2),
    Sketcher.Constraint("PointOnObject", 39, 3, -2),
    Sketcher.Constraint("PointOnObject", 40, 3, -2),
    Sketcher.Constraint("PointOnObject", 41, 3, -2),
    Sketcher.Constraint("PointOnObject", 42, 3, -2),
    Sketcher.Constraint("PointOnObject", 43, 3, -2),
    Sketcher.Constraint("PointOnObject", 44, 3, -2),
    Sketcher.Constraint("PointOnObject", 45, 3, -2),
    Sketcher.Constraint("PointOnObject", 46, 3, -2),
    Sketcher.Constraint("Parallel", 0, 6),
    Sketcher.Constraint("Parallel", 2, 9),
    Sketcher.Constraint("Parallel", 9, 11),
    Sketcher.Constraint("Parallel", 17, 25),
    Sketcher.Constraint("Parallel", 6, 27),
    Sketcher.Constraint("Parallel", 27, 35),
    Sketcher.Constraint("Parallel", 25, 48),
    Sketcher.Constraint("Horizontal", 10, 2, 15, 2),
    Sketcher.Constraint("Horizontal", 14, 3, 18, 2),
    Sketcher.Constraint("Radius", 1, 3.0),
    Sketcher.Constraint("Radius", 7, 400.0),
    Sketcher.Constraint("Radius", 8, 10.0),
    Sketcher.Constraint("Diameter", 36, 2.5),
    Sketcher.Constraint("DistanceY", 21, 2, 21, 1, 50.0),
    Sketcher.Constraint("Angle", 2, Q("-100 deg")),
    Sketcher.Constraint("DistanceY", 7, 3, -1, 1, 440.0),
    Sketcher.Constraint("DistanceY", -1, 1, 12, 3, 55.0),
    Sketcher.Constraint("DistanceX", -1, 1, 20, 3, 33.0),
    Sketcher.Constraint("DistanceY", -1, 1, 36, 3, 59.0),
    Sketcher.Constraint("DistanceY", -1, 1, 38, 3, 44.0),
    Sketcher.Constraint("DistanceY", -1, 1, 40, 3, 29.0),
    Sketcher.Constraint("DistanceY", -1, 1, 42, 3, 14.0),
    Sketcher.Constraint("DistanceY", 44, 3, -1, 1, 1.0),
    Sketcher.Constraint("DistanceY", 46, 3, -1, 1, 16.0),
    Sketcher.Constraint("DistanceY", -1, 1, 10, 2, 40.0),
    Sketcher.Constraint("DistanceY", 25, 2, -1, 1, 20.0),
    Sketcher.Constraint("DistanceY", -1, 1, 37, 3, 51.5),
    Sketcher.Constraint("DistanceY", -1, 1, 39, 3, 36.5),
    Sketcher.Constraint("DistanceY", -1, 1, 41, 3, 21.5),
    Sketcher.Constraint("DistanceY", -1, 1, 43, 3, 6.5),
    Sketcher.Constraint("DistanceY", 45, 3, -1, 1, 8.5),
    Sketcher.Constraint("DistanceX", 23, 1, 23, 2, 11.974712),
    Sketcher.Constraint("DistanceY", 5, 2, -1, 1, 26.724701),
    Sketcher.Constraint("DistanceY", -1, 1, 9, 2, 29.229901),
    Sketcher.Constraint("DistanceY", 56, 1, -1, 1, 51.769102),
    Sketcher.Constraint("Distance", 6, 19.717528),
    Sketcher.Constraint("Distance", 25, 11.680789),
    Sketcher.Constraint("DistanceX", 10, 2, 10, 1, 14.336746),
    Sketcher.Constraint("DistanceX", 13, 1, 13, 2, 163.218007),
    Sketcher.Constraint("DistanceY", 1, 3, -1, 1, 2.535188),
    Sketcher.Constraint("DistanceX", 3, 3, -1, 1, 88.374192),
])
pocket7 = body.newObject("PartDesign::Pocket", "Pocket006")
pocket7.Profile = sketch8
pocket7.Length = 10

sketch9 = body.newObject("Sketcher::SketchObject", "Sketch008")
sketch9.AttachmentSupport = (doc.getObject("XZ_Plane"), [""])
sketch9.MapMode = "FlatFace"
sketch9.AttachmentOffset = App.Placement(V(0, 0, -3), App.Rotation())
sketch9.addGeometry([
    Part.Circle(V(-55.5, -30, 0), V(0, 0, 1), 1.6),
    Part.Circle(V(-86.8, 25, 0), V(0, 0, 1), 1.5),
    Part.Circle(V(86.8, 25, 0), V(0, 0, 1), 1.5),
    Part.Circle(V(55.5, -30, 0), V(0, 0, 1), 1.6),
], False)
sketch9.addConstraint([
    Sketcher.Constraint("Equal", 1, 2),
    Sketcher.Constraint("Equal", 0, 3),
    Sketcher.Constraint("Symmetric", 1, 3, 2, 3, -2),
    Sketcher.Constraint("Symmetric", 0, 3, 3, 3, -2),
    Sketcher.Constraint("Diameter", 1, 3.0),
    Sketcher.Constraint("Diameter", 0, 3.3),
    Sketcher.Constraint("DistanceY", 0, 3, -1, 1, 30.0),
    Sketcher.Constraint("DistanceY", -1, 1, 1, 3, 25.0),
    Sketcher.Constraint("DistanceX", 0, 3, -1, 1, 55.513531),
    Sketcher.Constraint("DistanceX", 1, 3, -1, 1, 86.84716),
])
pocket8 = body.newObject("PartDesign::Pocket", "Pocket007")
pocket8.Profile = sketch9
pocket8.Type = "ThroughAll"
pocket8.Reversed = True
doc.recompute()

fillet5 = body.newObject("PartDesign::Fillet", "Fillet004")
fillet5.Base = (pocket8, edges_at(pocket8, [
    (-48.357, 1.5, -20),
    (80.071, 1.5, 40),
    (48.357, 1.5, -20),
    (-80.071, 1.5, 40),
    (57.517, 1.5, -44.157),
    (-57.517, 1.5, -44.157),
]))
fillet5.Radius = 10

sketch10 = body.newObject("Sketcher::SketchObject", "Sketch009")
sketch10.AttachmentSupport = (doc.getObject("XZ_Plane"), [""])
sketch10.MapMode = "FlatFace"
sketch10.AttachmentOffset = App.Placement(V(0, 0, -3), App.Rotation())
sketch10.addGeometry([
    Part.LineSegment(V(-12, -30, 0), V(-12, -10, 0)),
    Part.LineSegment(V(-12, -10, 0), V(12, -10, 0)),
    Part.LineSegment(V(12, -10, 0), V(12, -30, 0)),
    Part.LineSegment(V(12, -30, 0), V(-12, -30, 0)),
], False)
sketch10.addConstraint([
    Sketcher.Constraint("Coincident", 0, 2, 1, 1),
    Sketcher.Constraint("Coincident", 1, 2, 2, 1),
    Sketcher.Constraint("Coincident", 2, 2, 3, 1),
    Sketcher.Constraint("Coincident", 3, 2, 0, 1),
    Sketcher.Constraint("Vertical", 0),
    Sketcher.Constraint("Horizontal", 1),
    Sketcher.Constraint("Vertical", 2),
    Sketcher.Constraint("Horizontal", 3),
    Sketcher.Constraint("DistanceX", 1, 1, 1, 2, 25.0),
    Sketcher.Constraint("DistanceY", 0, 1, 0, 2, 20.0),
    Sketcher.Constraint("DistanceY", 0, 2, -1, 1, 10.0),
    Sketcher.Constraint("DistanceX", 0, 2, -1, 1, 12.5),
])
pocket9 = body.newObject("PartDesign::Pocket", "Pocket008")
pocket9.Profile = sketch10
pocket9.Type = "ThroughAll"
pocket9.Reversed = True
doc.recompute()

fillet6 = body.newObject("PartDesign::Fillet", "Fillet005")
fillet6.Base = (pocket9, edges_at(pocket9, [
    (-94.408, 1.5, 40),
    (94.408, 1.5, 40),
    (-96.307, 1.5, 29.23),
    (96.307, 1.5, 29.23),
    (-12.5, 1.5, -20),
    (12.5, 1.5, -20),
    (12.5, 1.5, -30),
    (-12.5, 1.5, -30),
]))
fillet6.Radius = 3

doc.recompute()
